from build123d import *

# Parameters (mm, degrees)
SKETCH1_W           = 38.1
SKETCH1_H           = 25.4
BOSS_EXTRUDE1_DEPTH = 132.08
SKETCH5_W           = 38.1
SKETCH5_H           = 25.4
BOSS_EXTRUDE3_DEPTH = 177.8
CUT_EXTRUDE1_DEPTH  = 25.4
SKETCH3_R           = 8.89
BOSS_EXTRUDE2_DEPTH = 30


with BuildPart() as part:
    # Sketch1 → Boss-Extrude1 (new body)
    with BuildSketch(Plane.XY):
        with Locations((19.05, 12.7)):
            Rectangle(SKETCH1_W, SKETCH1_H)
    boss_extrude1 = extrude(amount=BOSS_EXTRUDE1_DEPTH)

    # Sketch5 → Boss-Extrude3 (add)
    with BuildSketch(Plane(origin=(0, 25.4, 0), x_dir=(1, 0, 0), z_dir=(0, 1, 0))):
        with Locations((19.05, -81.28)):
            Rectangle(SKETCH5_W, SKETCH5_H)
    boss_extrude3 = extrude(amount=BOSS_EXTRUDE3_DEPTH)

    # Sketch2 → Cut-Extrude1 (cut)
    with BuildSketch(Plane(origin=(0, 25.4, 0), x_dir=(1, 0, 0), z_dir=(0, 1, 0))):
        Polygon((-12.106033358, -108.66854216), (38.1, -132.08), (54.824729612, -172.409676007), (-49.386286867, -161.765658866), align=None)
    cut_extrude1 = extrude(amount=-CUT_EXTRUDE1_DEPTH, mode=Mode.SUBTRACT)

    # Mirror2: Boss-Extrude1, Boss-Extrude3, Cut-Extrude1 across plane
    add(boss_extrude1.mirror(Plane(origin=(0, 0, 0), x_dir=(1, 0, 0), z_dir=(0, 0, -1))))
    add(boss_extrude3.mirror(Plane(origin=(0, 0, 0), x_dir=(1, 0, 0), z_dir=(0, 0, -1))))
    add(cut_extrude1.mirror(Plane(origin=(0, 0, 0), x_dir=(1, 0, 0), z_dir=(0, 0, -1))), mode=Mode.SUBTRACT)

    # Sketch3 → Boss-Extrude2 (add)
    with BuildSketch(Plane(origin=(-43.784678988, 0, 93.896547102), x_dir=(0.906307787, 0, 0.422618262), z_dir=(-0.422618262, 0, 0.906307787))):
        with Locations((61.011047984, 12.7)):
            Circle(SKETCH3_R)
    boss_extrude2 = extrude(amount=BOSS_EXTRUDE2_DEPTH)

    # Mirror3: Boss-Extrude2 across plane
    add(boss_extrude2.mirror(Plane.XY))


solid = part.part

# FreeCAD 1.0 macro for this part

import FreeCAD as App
import Part
import Sketcher

V = App.Vector
Q = App.Units.Quantity

doc = App.newDocument("Part")
params = doc.addObject("Spreadsheet::Sheet", "Params")
for row, (alias, value) in enumerate([
    ("sketch1_height", "1 in"),
    ("sketch1_width", "1.5 in"),
    ("pad1_length", "5.2 in"),
    ("sketch2_height", "1 in"),
    ("sketch2_width", "1.5 in"),
    ("pad2_length", "7 in"),
    ("pocket1_length", "1 in"),
    ("sketch4_diameter", "0.7 in"),
    ("pad3_length", "30 mm"),
], start=1):
    params.set(f"A{row}", alias)
    params.set(f"B{row}", "=" + value)
    params.setAlias(f"B{row}", alias)

body = doc.addObject("PartDesign::Body", "Body")

sketch1 = body.newObject("Sketcher::SketchObject", "Sketch")
sketch1.AttachmentSupport = (doc.getObject("XY_Plane"), [""])
sketch1.MapMode = "FlatFace"
sketch1.addGeometry(Part.LineSegment(V(0, 25.4, 0), V(0, 0, 0)), False)
sketch1.addGeometry(Part.LineSegment(V(0, 0, 0), V(38.1, 0, 0)), False)
sketch1.addGeometry(Part.LineSegment(V(38.1, 0, 0), V(38.1, 25.4, 0)), False)
sketch1.addGeometry(Part.LineSegment(V(38.1, 25.4, 0), V(0, 25.4, 0)), False)
sketch1.addConstraint(Sketcher.Constraint("Coincident", 0, 2, 1, 1))
sketch1.addConstraint(Sketcher.Constraint("Coincident", 1, 2, 2, 1))
sketch1.addConstraint(Sketcher.Constraint("Coincident", 2, 2, 3, 1))
sketch1.addConstraint(Sketcher.Constraint("Coincident", 3, 2, 0, 1))
sketch1.addConstraint(Sketcher.Constraint("Vertical", 0))
sketch1.addConstraint(Sketcher.Constraint("Horizontal", 1))
sketch1.addConstraint(Sketcher.Constraint("Vertical", 2))
sketch1.addConstraint(Sketcher.Constraint("Horizontal", 3))
sketch1.addConstraint(Sketcher.Constraint("Coincident", 0, 2, -1, 1))
sketch1.addConstraint(Sketcher.Constraint("DistanceY", 0, 2, 0, 1, Q("1 in")))
sketch1.addConstraint(Sketcher.Constraint("DistanceX", 1, 1, 1, 2, Q("1.5 in")))
sketch1.setExpression("Constraints[9]", "Params.sketch1_height")
sketch1.setExpression("Constraints[10]", "Params.sketch1_width")
pad1 = body.newObject("PartDesign::Pad", "Pad")
pad1.Profile = sketch1
pad1.setExpression("Length", "Params.pad1_length")

sketch2 = body.newObject("Sketcher::SketchObject", "Sketch001")
sketch2.AttachmentSupport = (doc.getObject("XZ_Plane"), [""])
sketch2.MapMode = "FlatFace"
sketch2.AttachmentOffset = App.Placement(V(0, 0, -1 * 25.4), App.Rotation())
sketch2.addGeometry(Part.LineSegment(V(0, 68.58, 0), V(0, 93.98, 0)), False)
sketch2.addGeometry(Part.LineSegment(V(0, 93.98, 0), V(38.1, 93.98, 0)), False)
sketch2.addGeometry(Part.LineSegment(V(38.1, 93.98, 0), V(38.1, 68.58, 0)), False)
sketch2.addGeometry(Part.LineSegment(V(38.1, 68.58, 0), V(0, 68.58, 0)), False)
sketch2.addConstraint(Sketcher.Constraint("Coincident", 0, 2, 1, 1))
sketch2.addConstraint(Sketcher.Constraint("Coincident", 1, 2, 2, 1))
sketch2.addConstraint(Sketcher.Constraint("Coincident", 2, 2, 3, 1))
sketch2.addConstraint(Sketcher.Constraint("Coincident", 3, 2, 0, 1))
sketch2.addConstraint(Sketcher.Constraint("Vertical", 0))
sketch2.addConstraint(Sketcher.Constraint("Horizontal", 1))
sketch2.addConstraint(Sketcher.Constraint("Vertical", 2))
sketch2.addConstraint(Sketcher.Constraint("Horizontal", 3))
sketch2.addConstraint(Sketcher.Constraint("PointOnObject", 0, 2, -2))
sketch2.addConstraint(Sketcher.Constraint("DistanceY", 0, 1, 0, 2, Q("1 in")))
sketch2.addConstraint(Sketcher.Constraint("DistanceX", 1, 1, 1, 2, Q("1.5 in")))
sketch2.addConstraint(Sketcher.Constraint("DistanceY", -1, 1, 0, 2, Q("3.7 in")))
sketch2.setExpression("Constraints[9]", "Params.sketch2_height")
sketch2.setExpression("Constraints[10]", "Params.sketch2_width")
pad2 = body.newObject("PartDesign::Pad", "Pad001")
pad2.Profile = sketch2
pad2.setExpression("Length", "Params.pad2_length")
pad2.Reversed = True

sketch3 = body.newObject("Sketcher::SketchObject", "Sketch002")
sketch3.AttachmentSupport = (doc.getObject("XZ_Plane"), [""])
sketch3.MapMode = "FlatFace"
sketch3.AttachmentOffset = App.Placement(V(0, 0, -1 * 25.4), App.Rotation())
sketch3.addGeometry(Part.LineSegment(V(38.1, 132.08, 0), V(-12.106033, 108.668542, 0)), False)
sketch3.addGeometry(Part.LineSegment(V(-12.106033, 108.668542, 0), V(-49.386287, 161.765659, 0)), False)
sketch3.addGeometry(Part.LineSegment(V(-49.386287, 161.765659, 0), V(54.82473, 172.409676, 0)), False)
sketch3.addGeometry(Part.LineSegment(V(54.82473, 172.409676, 0), V(38.1, 132.08, 0)), False)
sketch3.addConstraint(Sketcher.Constraint("Coincident", 0, 2, 1, 1))
sketch3.addConstraint(Sketcher.Constraint("Coincident", 1, 2, 2, 1))
sketch3.addConstraint(Sketcher.Constraint("Coincident", 2, 2, 3, 1))
sketch3.addConstraint(Sketcher.Constraint("Coincident", 3, 2, 0, 1))
sketch3.addConstraint(Sketcher.Constraint("Angle", 0, Q("-155 deg")))
sketch3.addConstraint(Sketcher.Constraint("DistanceX", -1, 1, 3, 2, Q("1.5 in")))
sketch3.addConstraint(Sketcher.Constraint("DistanceY", -1, 1, 3, 2, Q("5.2 in")))
sketch3.addConstraint(Sketcher.Constraint("Distance", 0, Q("55.396229 mm")))
sketch3.addConstraint(Sketcher.Constraint("Distance", 1, Q("64.87774 mm")))
sketch3.addConstraint(Sketcher.Constraint("Distance", 2, Q("104.753191 mm")))
sketch3.addConstraint(Sketcher.Constraint("DistanceY", -1, 1, 1, 2, Q("161.765659 mm")))
sketch3.addConstraint(Sketcher.Constraint("DistanceX", -1, 1, 2, 2, Q("54.82473 mm")))
pocket1 = body.newObject("PartDesign::Pocket", "Pocket")
pocket1.Profile = sketch3
pocket1.setExpression("Length", "Params.pocket1_length")
pocket1.Reversed = True
doc.recompute()

mirrored = body.newObject("PartDesign::Mirrored", "Mirrored")
mirrored.Originals = [pad1, pad2, pocket1]
mirrored.MirrorPlane = (doc.getObject("XY_Plane"), [""])
body.Tip = mirrored

sketch4 = body.newObject("Sketcher::SketchObject", "Sketch003")
sketch4.Placement = App.Placement(V(-43.784679, 0, 93.896547), App.Rotation(V(0.906307787, 0, 0.422618262), V(0, 1, 0), V(-0.422618262, 0, 0.906307787), "ZXY"))
sketch4.addGeometry(Part.Circle(V(61.011048, 12.7, 0), V(0, 0, 1), 8.89), False)
sketch4.addConstraint(Sketcher.Constraint("Diameter", 0, Q("0.7 in")))
sketch4.addConstraint(Sketcher.Constraint("DistanceY", -1, 1, 0, 3, Q("0.5 in")))
sketch4.addConstraint(Sketcher.Constraint("DistanceX", -1, 1, 0, 3, Q("61.011048 mm")))
sketch4.setExpression("Constraints[0]", "Params.sketch4_diameter")
pad3 = body.newObject("PartDesign::Pad", "Pad002")
pad3.Profile = sketch4
pad3.setExpression("Length", "Params.pad3_length")
doc.recompute()

mirrored2 = body.newObject("PartDesign::Mirrored", "Mirrored001")
mirrored2.Originals = [pad3]
mirrored2.MirrorPlane = (doc.getObject("XY_Plane"), [""])
body.Tip = mirrored2

doc.recompute()
